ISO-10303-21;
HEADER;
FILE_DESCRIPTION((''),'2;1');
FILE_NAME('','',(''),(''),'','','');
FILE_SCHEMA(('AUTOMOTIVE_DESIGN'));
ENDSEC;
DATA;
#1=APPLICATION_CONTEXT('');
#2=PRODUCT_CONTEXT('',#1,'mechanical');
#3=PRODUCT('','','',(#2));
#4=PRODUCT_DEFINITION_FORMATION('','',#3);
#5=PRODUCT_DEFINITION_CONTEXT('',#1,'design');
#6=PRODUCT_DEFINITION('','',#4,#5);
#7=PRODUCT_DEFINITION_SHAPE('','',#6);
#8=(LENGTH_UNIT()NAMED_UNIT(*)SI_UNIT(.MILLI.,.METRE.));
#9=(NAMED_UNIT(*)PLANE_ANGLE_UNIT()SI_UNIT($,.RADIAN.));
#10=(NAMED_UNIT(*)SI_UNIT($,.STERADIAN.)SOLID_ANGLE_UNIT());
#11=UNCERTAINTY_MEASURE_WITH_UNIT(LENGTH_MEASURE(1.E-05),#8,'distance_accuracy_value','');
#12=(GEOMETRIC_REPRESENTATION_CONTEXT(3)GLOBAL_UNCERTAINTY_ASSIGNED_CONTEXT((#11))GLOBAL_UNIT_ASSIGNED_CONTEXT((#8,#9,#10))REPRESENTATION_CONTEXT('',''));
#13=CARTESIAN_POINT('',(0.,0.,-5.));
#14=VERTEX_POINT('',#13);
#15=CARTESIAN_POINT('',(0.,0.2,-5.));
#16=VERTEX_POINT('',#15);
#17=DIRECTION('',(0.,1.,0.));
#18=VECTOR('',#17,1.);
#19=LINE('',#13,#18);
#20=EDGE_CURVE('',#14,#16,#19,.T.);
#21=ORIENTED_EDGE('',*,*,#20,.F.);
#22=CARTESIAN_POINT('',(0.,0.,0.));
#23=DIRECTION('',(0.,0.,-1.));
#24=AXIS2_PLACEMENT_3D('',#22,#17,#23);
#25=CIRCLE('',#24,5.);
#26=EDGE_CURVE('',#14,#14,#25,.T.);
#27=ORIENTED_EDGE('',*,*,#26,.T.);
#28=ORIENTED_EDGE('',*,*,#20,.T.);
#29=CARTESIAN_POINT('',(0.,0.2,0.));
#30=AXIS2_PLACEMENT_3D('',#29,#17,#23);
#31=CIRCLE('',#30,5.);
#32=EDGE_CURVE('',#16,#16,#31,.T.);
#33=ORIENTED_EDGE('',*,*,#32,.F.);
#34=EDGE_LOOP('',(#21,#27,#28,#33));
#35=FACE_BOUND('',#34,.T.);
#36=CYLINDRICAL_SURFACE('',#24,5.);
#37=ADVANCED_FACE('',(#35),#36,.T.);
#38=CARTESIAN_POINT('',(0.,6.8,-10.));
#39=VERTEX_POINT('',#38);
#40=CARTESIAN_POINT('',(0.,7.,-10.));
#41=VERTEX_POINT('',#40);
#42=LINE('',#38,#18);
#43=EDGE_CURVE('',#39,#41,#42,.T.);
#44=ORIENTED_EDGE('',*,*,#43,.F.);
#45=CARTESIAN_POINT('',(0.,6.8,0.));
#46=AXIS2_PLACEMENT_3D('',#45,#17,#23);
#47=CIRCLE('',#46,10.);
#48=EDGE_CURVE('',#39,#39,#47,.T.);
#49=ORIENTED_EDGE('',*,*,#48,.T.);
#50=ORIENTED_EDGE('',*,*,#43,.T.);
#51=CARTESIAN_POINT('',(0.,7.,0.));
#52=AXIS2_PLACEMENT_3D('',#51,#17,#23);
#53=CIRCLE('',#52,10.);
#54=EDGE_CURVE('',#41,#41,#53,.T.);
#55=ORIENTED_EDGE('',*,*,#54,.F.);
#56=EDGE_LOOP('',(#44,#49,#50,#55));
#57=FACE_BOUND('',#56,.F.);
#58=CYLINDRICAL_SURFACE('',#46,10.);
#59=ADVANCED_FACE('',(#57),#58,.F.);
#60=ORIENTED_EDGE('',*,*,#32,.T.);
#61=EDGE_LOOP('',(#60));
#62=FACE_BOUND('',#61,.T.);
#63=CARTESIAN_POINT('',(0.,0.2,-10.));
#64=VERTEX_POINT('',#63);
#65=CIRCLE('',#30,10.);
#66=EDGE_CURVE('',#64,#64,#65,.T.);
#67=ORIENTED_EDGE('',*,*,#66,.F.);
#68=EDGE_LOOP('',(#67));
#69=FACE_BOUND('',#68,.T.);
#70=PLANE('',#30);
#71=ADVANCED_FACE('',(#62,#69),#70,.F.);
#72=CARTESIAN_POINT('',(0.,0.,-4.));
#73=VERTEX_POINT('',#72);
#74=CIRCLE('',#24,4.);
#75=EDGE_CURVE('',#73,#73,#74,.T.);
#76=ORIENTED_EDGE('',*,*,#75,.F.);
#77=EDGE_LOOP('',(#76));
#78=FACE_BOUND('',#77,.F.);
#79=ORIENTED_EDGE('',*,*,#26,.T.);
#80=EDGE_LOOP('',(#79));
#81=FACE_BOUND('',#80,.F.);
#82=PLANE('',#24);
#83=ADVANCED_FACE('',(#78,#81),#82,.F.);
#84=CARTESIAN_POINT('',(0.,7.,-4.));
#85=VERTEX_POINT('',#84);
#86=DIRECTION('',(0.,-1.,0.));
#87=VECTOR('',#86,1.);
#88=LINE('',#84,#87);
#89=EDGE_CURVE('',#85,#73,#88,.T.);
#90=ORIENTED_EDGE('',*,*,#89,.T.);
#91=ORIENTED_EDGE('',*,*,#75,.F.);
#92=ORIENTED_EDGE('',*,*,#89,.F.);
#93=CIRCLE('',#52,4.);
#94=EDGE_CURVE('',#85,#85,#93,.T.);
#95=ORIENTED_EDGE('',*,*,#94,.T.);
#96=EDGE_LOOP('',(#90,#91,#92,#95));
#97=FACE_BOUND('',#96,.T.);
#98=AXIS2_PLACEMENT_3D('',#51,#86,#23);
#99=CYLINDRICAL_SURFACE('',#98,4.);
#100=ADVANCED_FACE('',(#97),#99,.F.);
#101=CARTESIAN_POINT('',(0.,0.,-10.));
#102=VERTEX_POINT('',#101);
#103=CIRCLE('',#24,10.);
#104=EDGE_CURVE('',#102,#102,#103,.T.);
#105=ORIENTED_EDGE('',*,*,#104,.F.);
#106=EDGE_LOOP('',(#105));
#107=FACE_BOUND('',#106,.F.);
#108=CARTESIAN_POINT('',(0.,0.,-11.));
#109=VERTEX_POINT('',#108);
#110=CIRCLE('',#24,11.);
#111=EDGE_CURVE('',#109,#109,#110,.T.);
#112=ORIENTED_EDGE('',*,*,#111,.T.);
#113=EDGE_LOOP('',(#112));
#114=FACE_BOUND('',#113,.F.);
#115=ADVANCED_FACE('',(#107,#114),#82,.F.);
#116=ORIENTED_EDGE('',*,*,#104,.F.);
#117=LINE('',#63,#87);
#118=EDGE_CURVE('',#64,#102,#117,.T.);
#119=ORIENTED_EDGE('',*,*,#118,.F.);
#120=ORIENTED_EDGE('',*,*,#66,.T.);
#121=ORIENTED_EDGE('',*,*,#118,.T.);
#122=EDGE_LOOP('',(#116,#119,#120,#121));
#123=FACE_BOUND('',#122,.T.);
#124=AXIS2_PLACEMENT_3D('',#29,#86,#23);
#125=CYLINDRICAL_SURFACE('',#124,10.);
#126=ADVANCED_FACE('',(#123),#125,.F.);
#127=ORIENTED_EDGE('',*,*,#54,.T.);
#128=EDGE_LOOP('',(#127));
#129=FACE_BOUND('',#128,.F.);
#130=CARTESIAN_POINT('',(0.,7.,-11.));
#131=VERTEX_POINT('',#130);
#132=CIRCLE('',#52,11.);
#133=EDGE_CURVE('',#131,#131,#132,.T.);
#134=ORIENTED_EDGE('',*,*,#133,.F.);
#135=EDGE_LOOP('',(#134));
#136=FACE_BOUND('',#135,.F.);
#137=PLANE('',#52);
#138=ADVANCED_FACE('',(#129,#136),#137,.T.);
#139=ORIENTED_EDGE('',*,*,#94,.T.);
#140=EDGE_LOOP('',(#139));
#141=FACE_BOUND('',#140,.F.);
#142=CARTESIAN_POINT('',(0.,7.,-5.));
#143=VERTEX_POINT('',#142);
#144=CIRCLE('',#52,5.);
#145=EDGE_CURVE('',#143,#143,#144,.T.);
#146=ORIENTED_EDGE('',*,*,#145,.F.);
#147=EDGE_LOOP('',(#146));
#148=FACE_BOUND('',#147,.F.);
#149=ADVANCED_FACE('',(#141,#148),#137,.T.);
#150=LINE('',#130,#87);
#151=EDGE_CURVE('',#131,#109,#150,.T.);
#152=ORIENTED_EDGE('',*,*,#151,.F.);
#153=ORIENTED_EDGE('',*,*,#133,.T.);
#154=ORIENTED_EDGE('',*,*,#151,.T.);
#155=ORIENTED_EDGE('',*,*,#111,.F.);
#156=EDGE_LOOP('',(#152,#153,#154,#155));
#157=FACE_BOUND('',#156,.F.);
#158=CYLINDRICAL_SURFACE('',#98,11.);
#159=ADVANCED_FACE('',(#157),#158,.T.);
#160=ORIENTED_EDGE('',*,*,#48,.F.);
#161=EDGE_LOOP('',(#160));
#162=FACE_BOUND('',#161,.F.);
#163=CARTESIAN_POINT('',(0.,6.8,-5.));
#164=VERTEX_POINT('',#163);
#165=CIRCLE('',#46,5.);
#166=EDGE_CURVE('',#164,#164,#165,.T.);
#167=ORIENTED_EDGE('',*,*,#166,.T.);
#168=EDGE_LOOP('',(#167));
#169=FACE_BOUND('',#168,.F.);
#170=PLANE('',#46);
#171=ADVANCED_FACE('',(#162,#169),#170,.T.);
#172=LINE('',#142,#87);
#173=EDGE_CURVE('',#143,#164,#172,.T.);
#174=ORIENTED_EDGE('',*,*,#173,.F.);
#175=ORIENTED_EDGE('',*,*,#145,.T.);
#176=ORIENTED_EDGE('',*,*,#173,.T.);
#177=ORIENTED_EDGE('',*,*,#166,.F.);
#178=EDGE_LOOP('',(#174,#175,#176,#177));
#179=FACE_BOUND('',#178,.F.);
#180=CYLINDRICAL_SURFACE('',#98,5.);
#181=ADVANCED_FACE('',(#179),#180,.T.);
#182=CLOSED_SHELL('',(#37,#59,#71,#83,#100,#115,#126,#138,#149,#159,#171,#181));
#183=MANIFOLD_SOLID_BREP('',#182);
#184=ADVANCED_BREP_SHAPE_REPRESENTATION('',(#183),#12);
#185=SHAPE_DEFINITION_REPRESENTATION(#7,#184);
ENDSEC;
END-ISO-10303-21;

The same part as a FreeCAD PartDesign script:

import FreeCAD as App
import Part
import Sketcher
from FreeCAD import Vector
Q = App.Units.Quantity

doc = App.newDocument("Part")
body = doc.addObject("PartDesign::Body", "Body")

# Sketch on YZ plane
sketch1 = body.newObject("Sketcher::SketchObject", "Sketch")
sketch1.AttachmentSupport = (doc.getObject("YZ_Plane"), [""])
sketch1.MapMode = "FlatFace"
sketch1.addGeometry([
    Part.LineSegment(Vector(7, -5, 0), Vector(7, -4, 0)),  # 0
    Part.LineSegment(Vector(7, -4, 0), Vector(0, -4, 0)),  # 1
    Part.LineSegment(Vector(0, -4, 0), Vector(0, -5, 0)),  # 2
    Part.LineSegment(Vector(0, -5, 0), Vector(0.2, -5, 0)),  # 3
    Part.LineSegment(Vector(0.2, -5, 0), Vector(0.2, -10, 0)),  # 4
    Part.LineSegment(Vector(0.2, -10, 0), Vector(0, -10, 0)),  # 5
    Part.LineSegment(Vector(0, -10, 0), Vector(0, -11, 0)),  # 6
    Part.LineSegment(Vector(0, -11, 0), Vector(7, -11, 0)),  # 7
    Part.LineSegment(Vector(7, -11, 0), Vector(7, -10, 0)),  # 8
    Part.LineSegment(Vector(7, -10, 0), Vector(6.8, -10, 0)),  # 9
    Part.LineSegment(Vector(6.8, -10, 0), Vector(6.8, -5, 0)),  # 10
    Part.LineSegment(Vector(6.8, -5, 0), Vector(7, -5, 0)),  # 11
], False)
sketch1.addConstraint([
    Sketcher.Constraint("Coincident", 0, 2, 1, 1),
    Sketcher.Constraint("Coincident", 1, 2, 2, 1),
    Sketcher.Constraint("Coincident", 2, 2, 3, 1),
    Sketcher.Constraint("Coincident", 3, 2, 4, 1),
    Sketcher.Constraint("Coincident", 4, 2, 5, 1),
    Sketcher.Constraint("Coincident", 5, 2, 6, 1),
    Sketcher.Constraint("Coincident", 6, 2, 7, 1),
    Sketcher.Constraint("Coincident", 7, 2, 8, 1),
    Sketcher.Constraint("Coincident", 8, 2, 9, 1),
    Sketcher.Constraint("Coincident", 9, 2, 10, 1),
    Sketcher.Constraint("Coincident", 10, 2, 11, 1),
    Sketcher.Constraint("Coincident", 11, 2, 0, 1),
    Sketcher.Constraint("Vertical", 0),
    Sketcher.Constraint("Horizontal", 1),
    Sketcher.Constraint("Vertical", 2),
    Sketcher.Constraint("Horizontal", 3),
    Sketcher.Constraint("Vertical", 4),
    Sketcher.Constraint("Horizontal", 5),
    Sketcher.Constraint("Vertical", 6),
    Sketcher.Constraint("Horizontal", 7),
    Sketcher.Constraint("Vertical", 8),
    Sketcher.Constraint("Horizontal", 9),
    Sketcher.Constraint("Vertical", 10),
    Sketcher.Constraint("Horizontal", 11),
    Sketcher.Constraint("PointOnObject", 1, 2, -2),
    Sketcher.Constraint("PointOnObject", 5, 2, -2),
    Sketcher.Constraint("Horizontal", 5, 2, 8, 2),
    Sketcher.Constraint("Horizontal", 3, 2, 10, 2),
    Sketcher.Constraint("Vertical", 0, 2, 7, 2),
    Sketcher.Constraint("Equal", 5, 9),
    Sketcher.Constraint("Equal", 2, 6),
    Sketcher.Constraint("DistanceX", 1, 2, 1, 1, Q("7 mm")),
    Sketcher.Constraint("DistanceY", 0, 1, 0, 2, Q("1 mm")),
    Sketcher.Constraint("DistanceX", 3, 1, 3, 2, Q("0.2 mm")),
    Sketcher.Constraint("DistanceY", 0, 2, -1, 1, Q("4 mm")),
    Sketcher.Constraint("DistanceY", 6, 2, -1, 1, Q("11 mm")),
])
revolution = body.newObject("PartDesign::Revolution", "Revolution")
revolution.Profile = sketch1
revolution.ReferenceAxis = (sketch1, ["H_Axis"])
revolution.Angle = 360

doc.recompute()
